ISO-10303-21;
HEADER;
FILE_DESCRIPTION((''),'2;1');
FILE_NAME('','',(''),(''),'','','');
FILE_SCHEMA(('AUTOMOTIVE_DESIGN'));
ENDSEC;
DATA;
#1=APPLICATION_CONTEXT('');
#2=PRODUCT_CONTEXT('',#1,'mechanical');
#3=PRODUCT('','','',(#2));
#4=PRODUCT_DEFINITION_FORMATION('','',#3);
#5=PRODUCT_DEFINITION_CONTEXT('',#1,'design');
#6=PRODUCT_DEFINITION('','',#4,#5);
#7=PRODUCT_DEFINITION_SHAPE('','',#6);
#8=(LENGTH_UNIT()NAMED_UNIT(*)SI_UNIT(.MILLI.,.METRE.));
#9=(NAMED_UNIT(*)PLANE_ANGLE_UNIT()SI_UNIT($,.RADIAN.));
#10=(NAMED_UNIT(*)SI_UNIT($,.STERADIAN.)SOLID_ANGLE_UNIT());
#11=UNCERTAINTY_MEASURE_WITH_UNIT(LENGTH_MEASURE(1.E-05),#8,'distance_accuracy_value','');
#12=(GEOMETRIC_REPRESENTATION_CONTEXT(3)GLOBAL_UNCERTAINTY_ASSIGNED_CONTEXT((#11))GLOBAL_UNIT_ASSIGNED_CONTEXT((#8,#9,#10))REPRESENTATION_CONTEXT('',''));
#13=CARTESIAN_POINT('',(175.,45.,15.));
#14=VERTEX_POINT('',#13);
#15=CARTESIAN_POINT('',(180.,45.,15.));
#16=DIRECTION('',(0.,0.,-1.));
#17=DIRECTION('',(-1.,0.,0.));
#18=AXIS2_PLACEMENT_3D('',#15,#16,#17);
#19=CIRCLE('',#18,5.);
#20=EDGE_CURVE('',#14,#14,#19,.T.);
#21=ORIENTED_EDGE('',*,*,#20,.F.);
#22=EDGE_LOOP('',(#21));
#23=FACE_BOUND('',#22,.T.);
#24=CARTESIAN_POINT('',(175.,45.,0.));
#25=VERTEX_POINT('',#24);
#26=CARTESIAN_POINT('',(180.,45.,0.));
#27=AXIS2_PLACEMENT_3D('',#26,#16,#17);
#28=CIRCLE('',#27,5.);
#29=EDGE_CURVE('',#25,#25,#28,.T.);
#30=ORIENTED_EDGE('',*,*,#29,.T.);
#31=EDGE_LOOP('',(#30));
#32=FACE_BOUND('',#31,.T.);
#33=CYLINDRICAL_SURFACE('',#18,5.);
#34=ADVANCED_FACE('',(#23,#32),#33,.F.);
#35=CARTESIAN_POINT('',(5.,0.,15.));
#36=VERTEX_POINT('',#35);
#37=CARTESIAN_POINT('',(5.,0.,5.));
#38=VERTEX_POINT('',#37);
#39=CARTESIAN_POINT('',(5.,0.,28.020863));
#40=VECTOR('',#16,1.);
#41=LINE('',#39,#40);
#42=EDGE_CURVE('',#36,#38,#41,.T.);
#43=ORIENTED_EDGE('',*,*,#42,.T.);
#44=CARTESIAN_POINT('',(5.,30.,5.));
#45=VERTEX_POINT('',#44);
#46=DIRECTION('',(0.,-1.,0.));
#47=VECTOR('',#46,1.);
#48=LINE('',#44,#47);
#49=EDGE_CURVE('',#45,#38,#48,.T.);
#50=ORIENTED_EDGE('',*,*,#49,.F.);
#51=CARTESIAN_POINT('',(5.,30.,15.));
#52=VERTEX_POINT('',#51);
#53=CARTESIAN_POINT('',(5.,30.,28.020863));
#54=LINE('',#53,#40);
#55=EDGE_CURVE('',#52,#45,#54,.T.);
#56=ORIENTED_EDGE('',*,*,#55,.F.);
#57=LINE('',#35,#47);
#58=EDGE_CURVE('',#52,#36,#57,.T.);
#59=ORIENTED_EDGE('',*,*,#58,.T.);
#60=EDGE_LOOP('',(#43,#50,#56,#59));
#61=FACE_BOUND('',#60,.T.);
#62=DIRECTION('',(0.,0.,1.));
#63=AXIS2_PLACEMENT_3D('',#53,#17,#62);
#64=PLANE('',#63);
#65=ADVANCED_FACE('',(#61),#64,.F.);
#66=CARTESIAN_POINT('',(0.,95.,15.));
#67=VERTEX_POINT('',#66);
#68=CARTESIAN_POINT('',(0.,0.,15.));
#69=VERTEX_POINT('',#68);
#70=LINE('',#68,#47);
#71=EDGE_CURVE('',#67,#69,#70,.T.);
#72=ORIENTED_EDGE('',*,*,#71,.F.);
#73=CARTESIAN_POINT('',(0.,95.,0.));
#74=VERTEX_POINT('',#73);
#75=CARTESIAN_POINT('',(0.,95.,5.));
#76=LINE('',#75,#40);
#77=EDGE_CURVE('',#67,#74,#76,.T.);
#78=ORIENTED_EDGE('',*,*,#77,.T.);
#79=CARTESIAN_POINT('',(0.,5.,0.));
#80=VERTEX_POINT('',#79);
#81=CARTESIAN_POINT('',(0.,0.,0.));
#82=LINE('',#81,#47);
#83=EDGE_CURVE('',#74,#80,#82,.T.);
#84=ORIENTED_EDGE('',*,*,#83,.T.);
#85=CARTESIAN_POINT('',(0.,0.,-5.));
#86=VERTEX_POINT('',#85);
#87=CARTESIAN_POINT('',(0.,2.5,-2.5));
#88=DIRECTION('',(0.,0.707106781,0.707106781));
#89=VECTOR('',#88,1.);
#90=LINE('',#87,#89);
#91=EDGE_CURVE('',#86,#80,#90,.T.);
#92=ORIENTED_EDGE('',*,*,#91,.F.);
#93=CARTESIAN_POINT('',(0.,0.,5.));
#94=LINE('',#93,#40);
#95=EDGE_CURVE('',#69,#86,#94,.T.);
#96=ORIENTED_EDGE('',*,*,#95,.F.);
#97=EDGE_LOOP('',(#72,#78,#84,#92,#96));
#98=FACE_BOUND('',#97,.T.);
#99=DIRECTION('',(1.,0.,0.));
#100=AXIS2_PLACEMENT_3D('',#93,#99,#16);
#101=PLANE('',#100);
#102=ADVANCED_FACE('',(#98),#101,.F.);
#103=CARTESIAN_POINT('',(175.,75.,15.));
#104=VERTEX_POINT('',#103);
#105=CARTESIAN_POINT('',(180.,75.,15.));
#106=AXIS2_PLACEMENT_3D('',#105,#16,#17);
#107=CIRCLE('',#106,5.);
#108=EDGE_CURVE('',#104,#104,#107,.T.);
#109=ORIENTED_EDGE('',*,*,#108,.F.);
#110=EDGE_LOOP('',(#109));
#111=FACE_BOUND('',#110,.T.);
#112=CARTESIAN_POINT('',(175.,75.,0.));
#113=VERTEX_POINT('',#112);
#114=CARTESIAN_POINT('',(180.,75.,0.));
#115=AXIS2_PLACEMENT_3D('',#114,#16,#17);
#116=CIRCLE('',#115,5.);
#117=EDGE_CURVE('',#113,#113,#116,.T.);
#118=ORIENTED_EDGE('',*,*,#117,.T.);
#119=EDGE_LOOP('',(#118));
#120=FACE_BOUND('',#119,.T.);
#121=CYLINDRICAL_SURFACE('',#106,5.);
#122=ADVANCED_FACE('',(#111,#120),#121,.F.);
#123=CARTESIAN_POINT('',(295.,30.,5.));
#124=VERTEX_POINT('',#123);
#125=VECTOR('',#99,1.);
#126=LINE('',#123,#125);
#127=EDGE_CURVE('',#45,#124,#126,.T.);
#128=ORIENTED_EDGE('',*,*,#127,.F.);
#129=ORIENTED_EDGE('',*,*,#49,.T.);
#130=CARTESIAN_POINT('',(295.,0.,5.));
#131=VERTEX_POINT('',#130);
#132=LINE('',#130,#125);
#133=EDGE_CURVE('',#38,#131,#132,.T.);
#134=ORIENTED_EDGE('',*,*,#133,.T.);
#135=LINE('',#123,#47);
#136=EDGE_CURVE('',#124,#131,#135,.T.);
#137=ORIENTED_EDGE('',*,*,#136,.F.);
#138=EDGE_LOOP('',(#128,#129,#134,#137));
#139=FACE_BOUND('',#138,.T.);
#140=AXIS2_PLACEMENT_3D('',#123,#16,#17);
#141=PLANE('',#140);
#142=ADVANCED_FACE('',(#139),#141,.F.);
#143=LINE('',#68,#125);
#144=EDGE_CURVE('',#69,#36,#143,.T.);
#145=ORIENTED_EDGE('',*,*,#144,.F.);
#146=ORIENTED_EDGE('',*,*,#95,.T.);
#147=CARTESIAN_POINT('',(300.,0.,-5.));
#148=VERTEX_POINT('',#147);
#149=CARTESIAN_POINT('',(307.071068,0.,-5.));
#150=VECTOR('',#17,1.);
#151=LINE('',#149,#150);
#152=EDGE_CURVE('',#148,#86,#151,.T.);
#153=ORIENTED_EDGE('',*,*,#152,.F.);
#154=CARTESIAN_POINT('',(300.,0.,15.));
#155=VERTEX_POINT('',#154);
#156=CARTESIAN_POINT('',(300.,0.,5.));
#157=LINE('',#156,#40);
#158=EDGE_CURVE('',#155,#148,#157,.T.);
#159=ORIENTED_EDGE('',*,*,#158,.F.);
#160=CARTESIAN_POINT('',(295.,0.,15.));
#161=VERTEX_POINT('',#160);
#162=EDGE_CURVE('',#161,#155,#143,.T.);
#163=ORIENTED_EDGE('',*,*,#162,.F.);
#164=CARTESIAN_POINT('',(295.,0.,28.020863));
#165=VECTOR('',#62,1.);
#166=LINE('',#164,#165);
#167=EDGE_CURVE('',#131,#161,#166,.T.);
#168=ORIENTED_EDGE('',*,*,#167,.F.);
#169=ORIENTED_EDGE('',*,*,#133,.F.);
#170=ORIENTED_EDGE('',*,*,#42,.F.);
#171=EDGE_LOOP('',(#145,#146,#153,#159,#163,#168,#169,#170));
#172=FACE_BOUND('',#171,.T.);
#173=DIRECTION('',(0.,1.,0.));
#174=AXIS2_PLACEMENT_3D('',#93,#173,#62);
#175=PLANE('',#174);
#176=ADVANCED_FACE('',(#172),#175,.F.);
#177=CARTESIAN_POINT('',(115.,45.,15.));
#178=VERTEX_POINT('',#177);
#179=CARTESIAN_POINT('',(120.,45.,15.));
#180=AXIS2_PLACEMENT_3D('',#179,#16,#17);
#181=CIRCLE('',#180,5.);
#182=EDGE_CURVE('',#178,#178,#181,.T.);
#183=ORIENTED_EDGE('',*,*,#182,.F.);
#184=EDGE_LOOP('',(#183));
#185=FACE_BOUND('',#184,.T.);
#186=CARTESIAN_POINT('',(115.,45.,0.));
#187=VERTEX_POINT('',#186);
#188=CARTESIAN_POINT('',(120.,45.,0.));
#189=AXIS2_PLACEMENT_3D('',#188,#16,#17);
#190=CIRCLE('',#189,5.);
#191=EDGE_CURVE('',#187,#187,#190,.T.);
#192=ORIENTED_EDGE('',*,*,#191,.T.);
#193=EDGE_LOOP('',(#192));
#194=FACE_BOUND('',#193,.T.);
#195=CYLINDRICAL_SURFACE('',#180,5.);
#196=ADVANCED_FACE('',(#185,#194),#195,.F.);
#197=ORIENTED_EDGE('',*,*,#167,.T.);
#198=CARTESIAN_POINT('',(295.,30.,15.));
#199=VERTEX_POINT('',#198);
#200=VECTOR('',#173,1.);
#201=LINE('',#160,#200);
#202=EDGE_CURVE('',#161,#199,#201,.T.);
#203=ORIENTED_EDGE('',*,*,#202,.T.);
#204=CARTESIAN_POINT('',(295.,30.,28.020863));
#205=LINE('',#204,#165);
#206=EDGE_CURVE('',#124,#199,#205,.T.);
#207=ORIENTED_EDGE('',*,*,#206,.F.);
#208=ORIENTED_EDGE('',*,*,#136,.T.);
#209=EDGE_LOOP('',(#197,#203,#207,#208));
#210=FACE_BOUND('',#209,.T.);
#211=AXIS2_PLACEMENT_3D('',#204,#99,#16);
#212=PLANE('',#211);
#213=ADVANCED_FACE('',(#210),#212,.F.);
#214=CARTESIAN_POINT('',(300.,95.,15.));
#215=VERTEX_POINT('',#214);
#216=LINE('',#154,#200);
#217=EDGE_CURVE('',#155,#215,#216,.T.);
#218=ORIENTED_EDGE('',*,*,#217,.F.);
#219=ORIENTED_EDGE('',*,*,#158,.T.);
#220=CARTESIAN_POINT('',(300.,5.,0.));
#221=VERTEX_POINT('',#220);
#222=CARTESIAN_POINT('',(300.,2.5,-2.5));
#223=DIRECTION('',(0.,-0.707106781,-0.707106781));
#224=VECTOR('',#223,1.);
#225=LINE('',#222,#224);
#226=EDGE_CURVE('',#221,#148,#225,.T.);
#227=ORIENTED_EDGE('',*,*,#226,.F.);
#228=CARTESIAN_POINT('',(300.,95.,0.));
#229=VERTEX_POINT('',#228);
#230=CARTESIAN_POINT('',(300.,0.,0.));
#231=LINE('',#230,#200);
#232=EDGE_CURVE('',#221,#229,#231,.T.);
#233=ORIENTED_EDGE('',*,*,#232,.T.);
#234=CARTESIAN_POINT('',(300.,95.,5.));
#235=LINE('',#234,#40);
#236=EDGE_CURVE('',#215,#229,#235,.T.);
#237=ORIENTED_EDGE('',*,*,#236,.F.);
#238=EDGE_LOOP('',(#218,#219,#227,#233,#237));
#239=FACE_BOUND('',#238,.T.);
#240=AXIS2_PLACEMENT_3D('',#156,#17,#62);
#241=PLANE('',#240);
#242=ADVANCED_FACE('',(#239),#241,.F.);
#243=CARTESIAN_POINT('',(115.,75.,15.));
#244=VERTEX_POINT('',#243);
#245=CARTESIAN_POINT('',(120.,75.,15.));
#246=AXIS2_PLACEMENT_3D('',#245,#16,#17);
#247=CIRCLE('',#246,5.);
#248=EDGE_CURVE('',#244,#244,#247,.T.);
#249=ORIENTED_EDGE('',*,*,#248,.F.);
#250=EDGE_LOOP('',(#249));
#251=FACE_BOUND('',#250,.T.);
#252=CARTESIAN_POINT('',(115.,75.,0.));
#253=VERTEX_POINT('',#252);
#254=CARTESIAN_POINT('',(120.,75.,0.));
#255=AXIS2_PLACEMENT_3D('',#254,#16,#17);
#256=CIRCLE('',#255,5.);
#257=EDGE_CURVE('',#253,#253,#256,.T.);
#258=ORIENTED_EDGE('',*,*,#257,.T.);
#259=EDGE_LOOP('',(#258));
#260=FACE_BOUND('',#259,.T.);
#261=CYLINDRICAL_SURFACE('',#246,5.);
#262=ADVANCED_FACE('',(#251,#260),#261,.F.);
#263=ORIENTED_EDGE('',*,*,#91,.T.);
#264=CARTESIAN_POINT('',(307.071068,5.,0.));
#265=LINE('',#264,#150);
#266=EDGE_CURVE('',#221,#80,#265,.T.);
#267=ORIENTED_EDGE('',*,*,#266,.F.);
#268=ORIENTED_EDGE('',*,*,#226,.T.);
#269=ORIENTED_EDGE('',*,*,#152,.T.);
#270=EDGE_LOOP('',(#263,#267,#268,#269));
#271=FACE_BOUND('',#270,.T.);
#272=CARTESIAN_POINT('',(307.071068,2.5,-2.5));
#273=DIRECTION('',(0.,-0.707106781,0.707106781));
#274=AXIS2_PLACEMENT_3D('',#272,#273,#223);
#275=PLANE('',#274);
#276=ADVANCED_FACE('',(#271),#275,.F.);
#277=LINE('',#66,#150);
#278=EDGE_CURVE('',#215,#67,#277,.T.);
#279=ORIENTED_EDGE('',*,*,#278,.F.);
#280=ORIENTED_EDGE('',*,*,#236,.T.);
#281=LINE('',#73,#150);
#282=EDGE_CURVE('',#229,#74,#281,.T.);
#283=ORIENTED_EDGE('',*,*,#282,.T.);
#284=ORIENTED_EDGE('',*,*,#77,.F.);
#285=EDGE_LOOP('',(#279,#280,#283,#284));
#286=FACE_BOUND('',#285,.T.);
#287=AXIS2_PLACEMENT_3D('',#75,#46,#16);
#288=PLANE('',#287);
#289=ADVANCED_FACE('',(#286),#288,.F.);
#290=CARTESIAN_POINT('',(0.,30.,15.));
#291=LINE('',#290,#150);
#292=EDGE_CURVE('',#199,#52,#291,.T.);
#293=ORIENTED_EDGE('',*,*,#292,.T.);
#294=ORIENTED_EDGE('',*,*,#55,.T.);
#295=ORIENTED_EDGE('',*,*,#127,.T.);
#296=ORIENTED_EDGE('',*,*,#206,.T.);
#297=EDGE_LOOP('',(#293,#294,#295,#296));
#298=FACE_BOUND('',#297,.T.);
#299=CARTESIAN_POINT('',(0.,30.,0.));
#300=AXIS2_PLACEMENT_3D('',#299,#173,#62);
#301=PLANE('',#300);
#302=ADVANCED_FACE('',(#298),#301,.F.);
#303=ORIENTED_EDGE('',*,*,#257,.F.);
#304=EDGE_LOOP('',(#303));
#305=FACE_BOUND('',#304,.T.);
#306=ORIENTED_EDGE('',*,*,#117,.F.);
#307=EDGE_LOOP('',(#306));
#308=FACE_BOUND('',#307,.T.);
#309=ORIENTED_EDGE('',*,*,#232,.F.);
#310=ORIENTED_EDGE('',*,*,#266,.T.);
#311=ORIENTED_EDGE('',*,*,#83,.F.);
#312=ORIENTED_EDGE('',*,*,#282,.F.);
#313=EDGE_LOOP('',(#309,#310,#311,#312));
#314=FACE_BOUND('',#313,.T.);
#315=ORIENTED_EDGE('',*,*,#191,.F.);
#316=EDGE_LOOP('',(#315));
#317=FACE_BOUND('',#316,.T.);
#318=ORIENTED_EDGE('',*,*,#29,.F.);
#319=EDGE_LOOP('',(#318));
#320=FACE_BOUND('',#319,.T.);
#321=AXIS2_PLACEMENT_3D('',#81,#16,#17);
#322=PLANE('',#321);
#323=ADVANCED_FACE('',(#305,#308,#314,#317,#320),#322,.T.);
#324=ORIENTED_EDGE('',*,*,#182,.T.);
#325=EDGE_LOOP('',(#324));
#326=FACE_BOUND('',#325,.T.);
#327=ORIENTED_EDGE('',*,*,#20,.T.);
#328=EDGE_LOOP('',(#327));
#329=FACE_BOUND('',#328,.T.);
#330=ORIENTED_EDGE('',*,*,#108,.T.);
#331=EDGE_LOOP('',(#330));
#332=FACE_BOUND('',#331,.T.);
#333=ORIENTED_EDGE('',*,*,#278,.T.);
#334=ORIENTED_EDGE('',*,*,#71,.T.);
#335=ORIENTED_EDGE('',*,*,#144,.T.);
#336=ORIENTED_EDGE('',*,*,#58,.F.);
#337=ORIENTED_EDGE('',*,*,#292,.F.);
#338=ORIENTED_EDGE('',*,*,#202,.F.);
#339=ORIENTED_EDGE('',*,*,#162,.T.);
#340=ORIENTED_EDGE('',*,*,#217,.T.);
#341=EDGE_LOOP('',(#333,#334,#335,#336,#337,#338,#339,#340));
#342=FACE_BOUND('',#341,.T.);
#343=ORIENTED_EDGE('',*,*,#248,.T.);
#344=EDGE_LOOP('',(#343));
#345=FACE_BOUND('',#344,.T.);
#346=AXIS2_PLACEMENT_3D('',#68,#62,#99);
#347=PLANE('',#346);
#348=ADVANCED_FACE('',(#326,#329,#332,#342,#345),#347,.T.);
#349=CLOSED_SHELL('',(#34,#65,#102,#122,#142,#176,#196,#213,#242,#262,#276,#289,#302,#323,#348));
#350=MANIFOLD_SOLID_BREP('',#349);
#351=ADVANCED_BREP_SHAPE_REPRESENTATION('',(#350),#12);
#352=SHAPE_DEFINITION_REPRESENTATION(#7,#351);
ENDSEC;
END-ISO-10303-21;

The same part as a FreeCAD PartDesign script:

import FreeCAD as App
import Part
import Sketcher
from FreeCAD import Vector


def add_polygon(sketch, points):
    """Adds a closed chain of lines whose ends are joined by coincident constraints."""
    first, n = sketch.GeometryCount, len(points)
    for a, b in zip(points, points[1:] + points[:1]):
        sketch.addGeometry(Part.LineSegment(App.Vector(*a, 0), App.Vector(*b, 0)), False)
    for i in range(n):
        sketch.addConstraint(Sketcher.Constraint("Coincident", first + i, 2, first + (i + 1) % n, 1))

doc = App.newDocument("Part")
body = doc.addObject("PartDesign::Body", "Body")

sketch1 = body.newObject("Sketcher::SketchObject", "Sketch")
sketch1.AttachmentSupport = (doc.getObject("XY_Plane"), [""])
sketch1.MapMode = "FlatFace"
add_polygon(sketch1, [(0, 95), (0, 0), (300, 0), (300, 95)])
sketch1.addConstraint([
    Sketcher.Constraint("Vertical", 0),
    Sketcher.Constraint("Horizontal", 1),
    Sketcher.Constraint("Vertical", 2),
    Sketcher.Constraint("Horizontal", 3),
    Sketcher.Constraint("Coincident", 0, 2, -1, 1),
    Sketcher.Constraint("DistanceX", 1, 1, 1, 2, 300.0),
    Sketcher.Constraint("DistanceY", 0, 2, 0, 1, 95.0),
])
pad1 = body.newObject("PartDesign::Pad", "Pad")
pad1.Profile = sketch1
pad1.Length = 5

sketch2 = body.newObject("Sketcher::SketchObject", "Sketch001")
sketch2.AttachmentSupport = (doc.getObject("YZ_Plane"), [""])
sketch2.MapMode = "FlatFace"
add_polygon(sketch2, [(0, -5), (0, 0), (5, 0)])
sketch2.addConstraint([
    Sketcher.Constraint("Vertical", 0),
    Sketcher.Constraint("Horizontal", 1),
    Sketcher.Constraint("Coincident", 0, 2, -1, 1),
    Sketcher.Constraint("Equal", 1, 0),
    Sketcher.Constraint("DistanceX", 1, 1, 1, 2, 5.0),
])
pad2 = body.newObject("PartDesign::Pad", "Pad001")
pad2.Profile = sketch2
pad2.Length = 300

sketch3 = body.newObject("Sketcher::SketchObject", "Sketch002")
sketch3.AttachmentSupport = (doc.getObject("XY_Plane"), [""])
sketch3.MapMode = "FlatFace"
sketch3.AttachmentOffset = App.Placement(Vector(0, 0, 5), App.Rotation())
add_polygon(sketch3, [(0, 95), (0, 0), (300, 0), (300, 95)])
sketch3.addConstraint([
    Sketcher.Constraint("Vertical", 0),
    Sketcher.Constraint("Horizontal", 1),
    Sketcher.Constraint("Vertical", 2),
    Sketcher.Constraint("Horizontal", 3),
    Sketcher.Constraint("Coincident", 0, 2, -1, 1),
    Sketcher.Constraint("DistanceX", 1, 1, 1, 2, 300.0),
    Sketcher.Constraint("DistanceY", 0, 2, 0, 1, 95.0),
])
pad3 = body.newObject("PartDesign::Pad", "Pad002")
pad3.Profile = sketch3
pad3.Length = 10

sketch4 = body.newObject("Sketcher::SketchObject", "Sketch003")
sketch4.AttachmentSupport = (doc.getObject("XY_Plane"), [""])
sketch4.MapMode = "FlatFace"
sketch4.addGeometry([
    Part.Circle(Vector(180, 75, 0), Vector(0, 0, 1), 5),
    Part.Circle(Vector(180, 45, 0), Vector(0, 0, 1), 5),
    Part.Circle(Vector(120, 45, 0), Vector(0, 0, 1), 5),
    Part.Circle(Vector(120, 75, 0), Vector(0, 0, 1), 5),
], False)
sketch4.addConstraint([
    Sketcher.Constraint("Equal", 0, 1),
    Sketcher.Constraint("Equal", 1, 2),
    Sketcher.Constraint("Equal", 2, 3),
    Sketcher.Constraint("Horizontal", 1, 3, 2, 3),
    Sketcher.Constraint("Horizontal", 0, 3, 3, 3),
    Sketcher.Constraint("Vertical", 0, 3, 1, 3),
    Sketcher.Constraint("Vertical", 2, 3, 3, 3),
    Sketcher.Constraint("Diameter", 0, 10.0),
    Sketcher.Constraint("DistanceX", -1, 1, 0, 3, 180.0),
    Sketcher.Constraint("DistanceY", -1, 1, 0, 3, 75.0),
    Sketcher.Constraint("DistanceY", -1, 1, 1, 3, 45.0),
    Sketcher.Constraint("DistanceX", -1, 1, 2, 3, 120.0),
])
pocket1 = body.newObject("PartDesign::Pocket", "Pocket")
pocket1.Profile = sketch4
pocket1.Type = "ThroughAll"
pocket1.Reversed = True

sketch5 = body.newObject("Sketcher::SketchObject", "Sketch004")
sketch5.AttachmentSupport = (doc.getObject("XZ_Plane"), [""])
sketch5.MapMode = "FlatFace"
add_polygon(sketch5, [(5, 28), (5, 5), (295, 5), (295, 28)])
sketch5.addConstraint([
    Sketcher.Constraint("Vertical", 0),
    Sketcher.Constraint("Horizontal", 1),
    Sketcher.Constraint("Vertical", 2),
    Sketcher.Constraint("Horizontal", 3),
    Sketcher.Constraint("DistanceX", 1, 1, 1, 2, 290.0),
    Sketcher.Constraint("DistanceX", -1, 1, 0, 2, 5.0),
    Sketcher.Constraint("DistanceY", -1, 1, 0, 2, 5.0),
    Sketcher.Constraint("DistanceY", 0, 2, 0, 1, 23.020863),
])
pocket2 = body.newObject("PartDesign::Pocket", "Pocket001")
pocket2.Profile = sketch5
pocket2.Length = 30

doc.recompute()
